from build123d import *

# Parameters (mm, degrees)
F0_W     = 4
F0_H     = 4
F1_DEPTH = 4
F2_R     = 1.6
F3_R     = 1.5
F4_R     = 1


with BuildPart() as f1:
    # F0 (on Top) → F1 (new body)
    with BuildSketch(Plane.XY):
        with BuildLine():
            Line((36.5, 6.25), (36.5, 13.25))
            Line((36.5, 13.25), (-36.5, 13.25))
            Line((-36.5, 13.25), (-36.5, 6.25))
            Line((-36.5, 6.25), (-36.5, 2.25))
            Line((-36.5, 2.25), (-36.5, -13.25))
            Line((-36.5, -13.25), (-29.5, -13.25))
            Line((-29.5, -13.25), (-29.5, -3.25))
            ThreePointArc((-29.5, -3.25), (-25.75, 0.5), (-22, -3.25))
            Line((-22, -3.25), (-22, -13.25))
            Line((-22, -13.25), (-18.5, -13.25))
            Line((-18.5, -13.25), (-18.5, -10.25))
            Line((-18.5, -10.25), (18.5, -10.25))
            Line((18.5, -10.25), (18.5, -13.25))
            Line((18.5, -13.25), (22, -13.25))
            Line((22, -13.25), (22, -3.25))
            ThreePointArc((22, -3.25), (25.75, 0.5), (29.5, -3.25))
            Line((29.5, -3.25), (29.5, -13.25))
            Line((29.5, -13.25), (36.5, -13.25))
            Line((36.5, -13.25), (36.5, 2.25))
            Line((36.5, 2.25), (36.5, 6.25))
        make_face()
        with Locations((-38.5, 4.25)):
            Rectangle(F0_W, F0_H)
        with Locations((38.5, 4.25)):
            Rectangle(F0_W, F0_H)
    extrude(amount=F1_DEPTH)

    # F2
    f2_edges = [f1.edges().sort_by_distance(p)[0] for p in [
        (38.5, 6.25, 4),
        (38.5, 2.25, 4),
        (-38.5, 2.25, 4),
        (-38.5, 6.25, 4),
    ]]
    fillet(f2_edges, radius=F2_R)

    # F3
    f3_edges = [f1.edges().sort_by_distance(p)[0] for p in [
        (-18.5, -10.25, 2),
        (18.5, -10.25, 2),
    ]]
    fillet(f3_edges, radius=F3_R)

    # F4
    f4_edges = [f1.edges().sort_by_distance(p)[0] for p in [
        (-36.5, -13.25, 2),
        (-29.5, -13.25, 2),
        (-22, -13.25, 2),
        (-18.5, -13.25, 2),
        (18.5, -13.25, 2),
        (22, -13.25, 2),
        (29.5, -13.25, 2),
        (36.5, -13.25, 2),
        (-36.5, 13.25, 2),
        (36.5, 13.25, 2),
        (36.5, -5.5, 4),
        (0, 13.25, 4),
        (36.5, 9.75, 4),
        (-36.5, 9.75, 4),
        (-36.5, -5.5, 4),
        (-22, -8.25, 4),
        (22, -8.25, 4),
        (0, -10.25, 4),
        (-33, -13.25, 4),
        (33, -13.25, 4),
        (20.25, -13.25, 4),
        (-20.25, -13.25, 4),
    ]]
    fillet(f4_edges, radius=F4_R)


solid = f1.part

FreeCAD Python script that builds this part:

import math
import FreeCAD as App
import Part
import Sketcher
Q = App.Units.Quantity


def edges_at(feature, points):
    """Names of the edges that pass closest to the given points."""
    edges = feature.Shape.Edges
    near = lambda p: min(range(len(edges)), key=lambda i: edges[i].distToShape(Part.Vertex(*p))[0])
    return sorted({f"Edge{near(p) + 1}" for p in points})

doc = App.newDocument("Part")
body = doc.addObject("PartDesign::Body", "Body")

sketch1 = body.newObject("Sketcher::SketchObject", "Sketch")
sketch1.AttachmentSupport = (doc.getObject("XY_Plane"), [""])
sketch1.MapMode = "FlatFace"
sketch1.addGeometry([
    Part.LineSegment(App.Vector(36.5, 13.2, 0), App.Vector(-36.5, 13.2, 0)),
    Part.LineSegment(App.Vector(-36.5, 13.2, 0), App.Vector(-36.5, 6.2, 0)),
    Part.LineSegment(App.Vector(-36.5, 6.2, 0), App.Vector(-40.5, 6.2, 0)),
    Part.LineSegment(App.Vector(-40.5, 6.2, 0), App.Vector(-40.5, 2.2, 0)),
    Part.LineSegment(App.Vector(-40.5, 2.2, 0), App.Vector(-36.5, 2.2, 0)),
    Part.LineSegment(App.Vector(-36.5, 2.2, 0), App.Vector(-36.5, -13.2, 0)),
    Part.LineSegment(App.Vector(-36.5, -13.2, 0), App.Vector(-29.5, -13.2, 0)),
    Part.LineSegment(App.Vector(-29.5, -13.2, 0), App.Vector(-29.5, -3.2, 0)),
    Part.ArcOfCircle(Part.Circle(App.Vector(-25.8, -3.2, 0), App.Vector(0, 0, 1), 3.8), math.radians(0), math.radians(180)),
    Part.LineSegment(App.Vector(-22, -3.2, 0), App.Vector(-22, -13.2, 0)),
    Part.LineSegment(App.Vector(-22, -13.2, 0), App.Vector(-18.5, -13.2, 0)),
    Part.LineSegment(App.Vector(-18.5, -13.2, 0), App.Vector(-18.5, -10.2, 0)),
    Part.LineSegment(App.Vector(-18.5, -10.2, 0), App.Vector(18.5, -10.2, 0)),
    Part.LineSegment(App.Vector(18.5, -10.2, 0), App.Vector(18.5, -13.2, 0)),
    Part.LineSegment(App.Vector(18.5, -13.2, 0), App.Vector(22, -13.2, 0)),
    Part.LineSegment(App.Vector(22, -13.2, 0), App.Vector(22, -3.2, 0)),
    Part.ArcOfCircle(Part.Circle(App.Vector(25.8, -3.2, 0), App.Vector(0, 0, 1), 3.8), math.radians(0), math.radians(180)),
    Part.LineSegment(App.Vector(29.5, -3.2, 0), App.Vector(29.5, -13.2, 0)),
    Part.LineSegment(App.Vector(29.5, -13.2, 0), App.Vector(36.5, -13.2, 0)),
    Part.LineSegment(App.Vector(36.5, -13.2, 0), App.Vector(36.5, 2.2, 0)),
    Part.LineSegment(App.Vector(36.5, 2.2, 0), App.Vector(40.5, 2.2, 0)),
    Part.LineSegment(App.Vector(40.5, 2.2, 0), App.Vector(40.5, 6.2, 0)),
    Part.LineSegment(App.Vector(40.5, 6.2, 0), App.Vector(36.5, 6.2, 0)),
    Part.LineSegment(App.Vector(36.5, 6.2, 0), App.Vector(36.5, 13.2, 0)),
], False)
sketch1.addConstraint([
    Sketcher.Constraint("Coincident", 0, 2, 1, 1),
    Sketcher.Constraint("Coincident", 1, 2, 2, 1),
    Sketcher.Constraint("Coincident", 2, 2, 3, 1),
    Sketcher.Constraint("Coincident", 3, 2, 4, 1),
    Sketcher.Constraint("Coincident", 4, 2, 5, 1),
    Sketcher.Constraint("Coincident", 5, 2, 6, 1),
    Sketcher.Constraint("Coincident", 6, 2, 7, 1),
    Sketcher.Constraint("Tangent", 7, 2, 8, 2),
    Sketcher.Constraint("Tangent", 8, 1, 9, 1),
    Sketcher.Constraint("Coincident", 9, 2, 10, 1),
    Sketcher.Constraint("Coincident", 10, 2, 11, 1),
    Sketcher.Constraint("Coincident", 11, 2, 12, 1),
    Sketcher.Constraint("Coincident", 12, 2, 13, 1),
    Sketcher.Constraint("Coincident", 13, 2, 14, 1),
    Sketcher.Constraint("Coincident", 14, 2, 15, 1),
    Sketcher.Constraint("Tangent", 15, 2, 16, 2),
    Sketcher.Constraint("Tangent", 16, 1, 17, 1),
    Sketcher.Constraint("Coincident", 17, 2, 18, 1),
    Sketcher.Constraint("Coincident", 18, 2, 19, 1),
    Sketcher.Constraint("Coincident", 19, 2, 20, 1),
    Sketcher.Constraint("Coincident", 20, 2, 21, 1),
    Sketcher.Constraint("Coincident", 21, 2, 22, 1),
    Sketcher.Constraint("Coincident", 22, 2, 23, 1),
    Sketcher.Constraint("Coincident", 23, 2, 0, 1),
    Sketcher.Constraint("Horizontal", 0),
    Sketcher.Constraint("Vertical", 1),
    Sketcher.Constraint("Horizontal", 2),
    Sketcher.Constraint("Vertical", 3),
    Sketcher.Constraint("Horizontal", 4),
    Sketcher.Constraint("Vertical", 5),
    Sketcher.Constraint("Horizontal", 6),
    Sketcher.Constraint("Vertical", 7),
    Sketcher.Constraint("Vertical", 9),
    Sketcher.Constraint("Horizontal", 10),
    Sketcher.Constraint("Vertical", 11),
    Sketcher.Constraint("Horizontal", 12),
    Sketcher.Constraint("Vertical", 13),
    Sketcher.Constraint("Horizontal", 14),
    Sketcher.Constraint("Vertical", 15),
    Sketcher.Constraint("Vertical", 17),
    Sketcher.Constraint("Horizontal", 18),
    Sketcher.Constraint("Vertical", 19),
    Sketcher.Constraint("Horizontal", 20),
    Sketcher.Constraint("Vertical", 21),
    Sketcher.Constraint("Horizontal", 22),
    Sketcher.Constraint("Vertical", 23),
    Sketcher.Constraint("Equal", 8, 16),
    Sketcher.Constraint("Symmetric", 0, 2, 18, 2, -1, 1),
    Sketcher.Constraint("Symmetric", 5, 2, 23, 2, -1, 1),
    Sketcher.Constraint("Symmetric", 8, 3, 16, 3, -2),
    Sketcher.Constraint("Symmetric", 10, 2, 13, 2, -2),
    Sketcher.Constraint("Symmetric", 4, 2, 19, 2, -2),
    Sketcher.Constraint("Symmetric", 2, 2, 21, 2, -2),
    Sketcher.Constraint("Horizontal", 6, 2, 9, 2),
    Sketcher.Constraint("Equal", 18, 1),
    Sketcher.Constraint("Equal", 22, 3),
    Sketcher.Constraint("DistanceX", 0, 2, 0, 1, Q("73 mm")),
    Sketcher.Constraint("DistanceX", 2, 2, 2, 1, Q("4 mm")),
    Sketcher.Constraint("DistanceX", 6, 1, 6, 2, Q("7 mm")),
    Sketcher.Constraint("DistanceX", 12, 1, 12, 2, Q("37 mm")),
    Sketcher.Constraint("DistanceY", 7, 1, 7, 2, Q("10 mm")),
    Sketcher.Constraint("DistanceY", 11, 1, 11, 2, Q("3 mm")),
    Sketcher.Constraint("Radius", 8, Q("3.75 mm")),
    Sketcher.Constraint("DistanceY", 5, 2, 5, 1, Q("15.5 mm")),
])
pad1 = body.newObject("PartDesign::Pad", "Pad")
pad1.Profile = sketch1
pad1.Length = 4
doc.recompute()

fillet = body.newObject("PartDesign::Fillet", "Fillet")
fillet.Base = (pad1, edges_at(pad1, [
    (38.5, 6.25, 4),
    (38.5, 2.25, 4),
    (-38.5, 2.25, 4),
    (-38.5, 6.25, 4),
]))
fillet.Radius = 1.6
doc.recompute()

fillet2 = body.newObject("PartDesign::Fillet", "Fillet001")
fillet2.Base = (fillet, edges_at(fillet, [(-18.5, -10.25, 2), (18.5, -10.25, 2)]))
fillet2.Radius = 1.5
doc.recompute()

fillet3 = body.newObject("PartDesign::Fillet", "Fillet002")
fillet3.Base = (fillet2, edges_at(fillet2, [
    (-36.5, -13.25, 2),
    (-29.5, -13.25, 2),
    (-22, -13.25, 2),
    (-18.5, -13.25, 2),
    (18.5, -13.25, 2),
    (22, -13.25, 2),
    (29.5, -13.25, 2),
    (36.5, -13.25, 2),
    (-36.5, 13.25, 2),
    (36.5, 13.25, 2),
    (36.5, -4.7, 4),
    (0, 13.25, 4),
    (36.5, 8.95, 4),
    (-36.5, 8.95, 4),
    (-36.5, -4.7, 4),
    (-22, -8.25, 4),
    (22, -8.25, 4),
    (0, -10.25, 4),
    (-33, -13.25, 4),
    (33, -13.25, 4),
    (20.25, -13.25, 4),
    (-20.25, -13.25, 4),
]))
fillet3.Radius = 1

doc.recompute()
